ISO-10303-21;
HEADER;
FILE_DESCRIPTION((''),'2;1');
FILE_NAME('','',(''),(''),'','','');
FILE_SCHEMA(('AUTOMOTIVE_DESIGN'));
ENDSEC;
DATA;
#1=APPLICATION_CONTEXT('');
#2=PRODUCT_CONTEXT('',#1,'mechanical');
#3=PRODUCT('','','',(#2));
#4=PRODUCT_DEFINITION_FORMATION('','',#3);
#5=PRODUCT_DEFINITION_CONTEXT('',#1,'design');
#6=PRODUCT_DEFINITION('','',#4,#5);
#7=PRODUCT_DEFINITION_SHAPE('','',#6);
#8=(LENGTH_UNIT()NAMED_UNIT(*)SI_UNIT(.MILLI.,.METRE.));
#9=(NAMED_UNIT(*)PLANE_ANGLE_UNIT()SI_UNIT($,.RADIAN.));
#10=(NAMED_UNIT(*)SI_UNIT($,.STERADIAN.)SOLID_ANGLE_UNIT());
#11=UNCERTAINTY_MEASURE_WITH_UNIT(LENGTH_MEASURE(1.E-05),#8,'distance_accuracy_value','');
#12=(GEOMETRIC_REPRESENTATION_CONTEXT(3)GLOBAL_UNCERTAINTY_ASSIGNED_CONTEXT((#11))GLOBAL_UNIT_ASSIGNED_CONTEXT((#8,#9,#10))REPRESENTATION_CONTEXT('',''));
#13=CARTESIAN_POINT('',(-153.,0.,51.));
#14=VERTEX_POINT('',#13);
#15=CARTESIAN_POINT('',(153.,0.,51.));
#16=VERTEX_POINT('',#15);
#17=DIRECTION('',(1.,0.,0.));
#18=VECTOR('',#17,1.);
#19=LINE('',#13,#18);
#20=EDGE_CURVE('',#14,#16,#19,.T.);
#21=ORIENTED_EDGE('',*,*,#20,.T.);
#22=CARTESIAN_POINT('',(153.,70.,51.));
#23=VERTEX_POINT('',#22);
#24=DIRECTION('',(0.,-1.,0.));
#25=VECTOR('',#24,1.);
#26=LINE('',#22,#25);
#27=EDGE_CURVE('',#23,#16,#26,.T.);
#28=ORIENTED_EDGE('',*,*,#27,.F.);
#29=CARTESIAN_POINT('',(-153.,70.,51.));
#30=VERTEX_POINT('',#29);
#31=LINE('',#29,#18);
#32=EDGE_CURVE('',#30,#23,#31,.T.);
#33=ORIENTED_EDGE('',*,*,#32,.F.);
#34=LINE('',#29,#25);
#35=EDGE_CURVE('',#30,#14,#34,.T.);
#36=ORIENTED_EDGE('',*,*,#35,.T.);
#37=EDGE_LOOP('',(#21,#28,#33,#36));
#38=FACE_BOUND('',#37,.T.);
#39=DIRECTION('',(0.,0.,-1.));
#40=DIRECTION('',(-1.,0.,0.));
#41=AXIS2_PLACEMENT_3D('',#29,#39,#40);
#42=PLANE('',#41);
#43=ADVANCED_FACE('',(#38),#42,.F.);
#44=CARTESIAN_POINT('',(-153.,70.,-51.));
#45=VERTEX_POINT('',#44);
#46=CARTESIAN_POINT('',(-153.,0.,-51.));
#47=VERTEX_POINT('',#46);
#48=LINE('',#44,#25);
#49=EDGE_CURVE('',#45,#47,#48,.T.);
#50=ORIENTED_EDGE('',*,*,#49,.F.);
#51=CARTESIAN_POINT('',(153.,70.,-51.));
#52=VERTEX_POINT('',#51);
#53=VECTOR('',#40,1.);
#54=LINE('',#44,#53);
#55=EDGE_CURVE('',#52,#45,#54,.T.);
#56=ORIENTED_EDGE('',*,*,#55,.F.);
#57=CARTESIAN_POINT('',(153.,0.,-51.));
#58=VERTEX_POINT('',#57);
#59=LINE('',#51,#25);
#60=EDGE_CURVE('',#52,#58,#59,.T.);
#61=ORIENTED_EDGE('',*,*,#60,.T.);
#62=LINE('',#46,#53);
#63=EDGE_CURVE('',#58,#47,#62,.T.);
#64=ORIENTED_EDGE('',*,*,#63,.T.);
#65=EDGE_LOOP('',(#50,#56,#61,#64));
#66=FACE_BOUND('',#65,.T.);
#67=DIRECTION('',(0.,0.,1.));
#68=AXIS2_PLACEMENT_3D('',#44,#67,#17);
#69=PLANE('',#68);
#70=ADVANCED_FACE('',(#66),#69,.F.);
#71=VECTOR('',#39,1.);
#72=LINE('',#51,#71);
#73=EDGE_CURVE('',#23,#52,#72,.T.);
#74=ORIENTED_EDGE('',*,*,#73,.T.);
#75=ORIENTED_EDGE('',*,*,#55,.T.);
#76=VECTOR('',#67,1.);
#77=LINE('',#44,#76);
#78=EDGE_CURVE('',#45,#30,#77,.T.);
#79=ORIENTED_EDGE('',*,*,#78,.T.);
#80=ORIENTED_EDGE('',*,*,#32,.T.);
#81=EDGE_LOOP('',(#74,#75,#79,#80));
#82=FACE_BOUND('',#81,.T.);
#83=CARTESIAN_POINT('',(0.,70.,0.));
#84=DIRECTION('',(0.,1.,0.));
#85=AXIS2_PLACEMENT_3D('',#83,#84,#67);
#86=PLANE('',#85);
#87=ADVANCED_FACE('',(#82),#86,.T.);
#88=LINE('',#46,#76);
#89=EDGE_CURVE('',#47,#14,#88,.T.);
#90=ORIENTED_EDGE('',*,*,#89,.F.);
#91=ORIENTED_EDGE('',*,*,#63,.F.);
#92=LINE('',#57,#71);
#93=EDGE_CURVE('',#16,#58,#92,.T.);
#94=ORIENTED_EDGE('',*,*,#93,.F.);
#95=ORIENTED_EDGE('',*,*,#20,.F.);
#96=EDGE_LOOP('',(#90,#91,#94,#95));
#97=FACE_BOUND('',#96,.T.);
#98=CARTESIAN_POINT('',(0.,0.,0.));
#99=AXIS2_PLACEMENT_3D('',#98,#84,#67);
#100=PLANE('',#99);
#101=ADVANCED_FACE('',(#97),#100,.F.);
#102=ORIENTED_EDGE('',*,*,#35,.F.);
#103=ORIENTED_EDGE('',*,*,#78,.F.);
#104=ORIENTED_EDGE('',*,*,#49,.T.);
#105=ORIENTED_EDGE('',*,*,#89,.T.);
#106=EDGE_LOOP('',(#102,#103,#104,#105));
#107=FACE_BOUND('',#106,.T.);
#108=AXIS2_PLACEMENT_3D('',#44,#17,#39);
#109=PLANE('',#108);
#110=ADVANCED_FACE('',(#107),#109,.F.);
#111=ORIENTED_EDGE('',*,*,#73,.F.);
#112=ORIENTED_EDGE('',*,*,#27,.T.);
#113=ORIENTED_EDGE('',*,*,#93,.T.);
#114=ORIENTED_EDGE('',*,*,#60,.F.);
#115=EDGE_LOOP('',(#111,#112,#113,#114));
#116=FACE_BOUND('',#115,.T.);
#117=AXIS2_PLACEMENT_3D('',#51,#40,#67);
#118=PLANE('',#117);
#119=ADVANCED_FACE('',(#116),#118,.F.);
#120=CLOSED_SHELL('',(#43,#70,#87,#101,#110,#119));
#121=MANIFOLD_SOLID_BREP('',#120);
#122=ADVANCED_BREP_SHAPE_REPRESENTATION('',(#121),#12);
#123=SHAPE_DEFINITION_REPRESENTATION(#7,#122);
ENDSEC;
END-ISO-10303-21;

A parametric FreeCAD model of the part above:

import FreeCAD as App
import Part
import Sketcher
from FreeCAD import Vector
Q = App.Units.Quantity

doc = App.newDocument("Part")
body = doc.addObject("PartDesign::Body", "Body")

# Sketch on XZ plane
sketch1 = body.newObject("Sketcher::SketchObject", "Sketch")
sketch1.AttachmentSupport = (doc.getObject("XZ_Plane"), [""])
sketch1.MapMode = "FlatFace"
sketch1.addGeometry([
    Part.LineSegment(Vector(-153, -51, 0), Vector(-153, 51, 0)),
    Part.LineSegment(Vector(-153, 51, 0), Vector(153, 51, 0)),
    Part.LineSegment(Vector(153, 51, 0), Vector(153, -51, 0)),
    Part.LineSegment(Vector(153, -51, 0), Vector(-153, -51, 0)),
], False)
sketch1.addConstraint([
    Sketcher.Constraint("Coincident", 0, 2, 1, 1),
    Sketcher.Constraint("Coincident", 1, 2, 2, 1),
    Sketcher.Constraint("Coincident", 2, 2, 3, 1),
    Sketcher.Constraint("Coincident", 3, 2, 0, 1),
    Sketcher.Constraint("Vertical", 0),
    Sketcher.Constraint("Horizontal", 1),
    Sketcher.Constraint("Vertical", 2),
    Sketcher.Constraint("Horizontal", 3),
    Sketcher.Constraint("Symmetric", 0, 2, 2, 2, -1, 1),
    Sketcher.Constraint("DistanceX", 1, 1, 1, 2, Q("306 mm")),
    Sketcher.Constraint("DistanceY", 0, 1, 0, 2, Q("102 mm")),
])
pad1 = body.newObject("PartDesign::Pad", "Pad")
pad1.Profile = sketch1
pad1.Length = 70
pad1.Reversed = True

doc.recompute()
